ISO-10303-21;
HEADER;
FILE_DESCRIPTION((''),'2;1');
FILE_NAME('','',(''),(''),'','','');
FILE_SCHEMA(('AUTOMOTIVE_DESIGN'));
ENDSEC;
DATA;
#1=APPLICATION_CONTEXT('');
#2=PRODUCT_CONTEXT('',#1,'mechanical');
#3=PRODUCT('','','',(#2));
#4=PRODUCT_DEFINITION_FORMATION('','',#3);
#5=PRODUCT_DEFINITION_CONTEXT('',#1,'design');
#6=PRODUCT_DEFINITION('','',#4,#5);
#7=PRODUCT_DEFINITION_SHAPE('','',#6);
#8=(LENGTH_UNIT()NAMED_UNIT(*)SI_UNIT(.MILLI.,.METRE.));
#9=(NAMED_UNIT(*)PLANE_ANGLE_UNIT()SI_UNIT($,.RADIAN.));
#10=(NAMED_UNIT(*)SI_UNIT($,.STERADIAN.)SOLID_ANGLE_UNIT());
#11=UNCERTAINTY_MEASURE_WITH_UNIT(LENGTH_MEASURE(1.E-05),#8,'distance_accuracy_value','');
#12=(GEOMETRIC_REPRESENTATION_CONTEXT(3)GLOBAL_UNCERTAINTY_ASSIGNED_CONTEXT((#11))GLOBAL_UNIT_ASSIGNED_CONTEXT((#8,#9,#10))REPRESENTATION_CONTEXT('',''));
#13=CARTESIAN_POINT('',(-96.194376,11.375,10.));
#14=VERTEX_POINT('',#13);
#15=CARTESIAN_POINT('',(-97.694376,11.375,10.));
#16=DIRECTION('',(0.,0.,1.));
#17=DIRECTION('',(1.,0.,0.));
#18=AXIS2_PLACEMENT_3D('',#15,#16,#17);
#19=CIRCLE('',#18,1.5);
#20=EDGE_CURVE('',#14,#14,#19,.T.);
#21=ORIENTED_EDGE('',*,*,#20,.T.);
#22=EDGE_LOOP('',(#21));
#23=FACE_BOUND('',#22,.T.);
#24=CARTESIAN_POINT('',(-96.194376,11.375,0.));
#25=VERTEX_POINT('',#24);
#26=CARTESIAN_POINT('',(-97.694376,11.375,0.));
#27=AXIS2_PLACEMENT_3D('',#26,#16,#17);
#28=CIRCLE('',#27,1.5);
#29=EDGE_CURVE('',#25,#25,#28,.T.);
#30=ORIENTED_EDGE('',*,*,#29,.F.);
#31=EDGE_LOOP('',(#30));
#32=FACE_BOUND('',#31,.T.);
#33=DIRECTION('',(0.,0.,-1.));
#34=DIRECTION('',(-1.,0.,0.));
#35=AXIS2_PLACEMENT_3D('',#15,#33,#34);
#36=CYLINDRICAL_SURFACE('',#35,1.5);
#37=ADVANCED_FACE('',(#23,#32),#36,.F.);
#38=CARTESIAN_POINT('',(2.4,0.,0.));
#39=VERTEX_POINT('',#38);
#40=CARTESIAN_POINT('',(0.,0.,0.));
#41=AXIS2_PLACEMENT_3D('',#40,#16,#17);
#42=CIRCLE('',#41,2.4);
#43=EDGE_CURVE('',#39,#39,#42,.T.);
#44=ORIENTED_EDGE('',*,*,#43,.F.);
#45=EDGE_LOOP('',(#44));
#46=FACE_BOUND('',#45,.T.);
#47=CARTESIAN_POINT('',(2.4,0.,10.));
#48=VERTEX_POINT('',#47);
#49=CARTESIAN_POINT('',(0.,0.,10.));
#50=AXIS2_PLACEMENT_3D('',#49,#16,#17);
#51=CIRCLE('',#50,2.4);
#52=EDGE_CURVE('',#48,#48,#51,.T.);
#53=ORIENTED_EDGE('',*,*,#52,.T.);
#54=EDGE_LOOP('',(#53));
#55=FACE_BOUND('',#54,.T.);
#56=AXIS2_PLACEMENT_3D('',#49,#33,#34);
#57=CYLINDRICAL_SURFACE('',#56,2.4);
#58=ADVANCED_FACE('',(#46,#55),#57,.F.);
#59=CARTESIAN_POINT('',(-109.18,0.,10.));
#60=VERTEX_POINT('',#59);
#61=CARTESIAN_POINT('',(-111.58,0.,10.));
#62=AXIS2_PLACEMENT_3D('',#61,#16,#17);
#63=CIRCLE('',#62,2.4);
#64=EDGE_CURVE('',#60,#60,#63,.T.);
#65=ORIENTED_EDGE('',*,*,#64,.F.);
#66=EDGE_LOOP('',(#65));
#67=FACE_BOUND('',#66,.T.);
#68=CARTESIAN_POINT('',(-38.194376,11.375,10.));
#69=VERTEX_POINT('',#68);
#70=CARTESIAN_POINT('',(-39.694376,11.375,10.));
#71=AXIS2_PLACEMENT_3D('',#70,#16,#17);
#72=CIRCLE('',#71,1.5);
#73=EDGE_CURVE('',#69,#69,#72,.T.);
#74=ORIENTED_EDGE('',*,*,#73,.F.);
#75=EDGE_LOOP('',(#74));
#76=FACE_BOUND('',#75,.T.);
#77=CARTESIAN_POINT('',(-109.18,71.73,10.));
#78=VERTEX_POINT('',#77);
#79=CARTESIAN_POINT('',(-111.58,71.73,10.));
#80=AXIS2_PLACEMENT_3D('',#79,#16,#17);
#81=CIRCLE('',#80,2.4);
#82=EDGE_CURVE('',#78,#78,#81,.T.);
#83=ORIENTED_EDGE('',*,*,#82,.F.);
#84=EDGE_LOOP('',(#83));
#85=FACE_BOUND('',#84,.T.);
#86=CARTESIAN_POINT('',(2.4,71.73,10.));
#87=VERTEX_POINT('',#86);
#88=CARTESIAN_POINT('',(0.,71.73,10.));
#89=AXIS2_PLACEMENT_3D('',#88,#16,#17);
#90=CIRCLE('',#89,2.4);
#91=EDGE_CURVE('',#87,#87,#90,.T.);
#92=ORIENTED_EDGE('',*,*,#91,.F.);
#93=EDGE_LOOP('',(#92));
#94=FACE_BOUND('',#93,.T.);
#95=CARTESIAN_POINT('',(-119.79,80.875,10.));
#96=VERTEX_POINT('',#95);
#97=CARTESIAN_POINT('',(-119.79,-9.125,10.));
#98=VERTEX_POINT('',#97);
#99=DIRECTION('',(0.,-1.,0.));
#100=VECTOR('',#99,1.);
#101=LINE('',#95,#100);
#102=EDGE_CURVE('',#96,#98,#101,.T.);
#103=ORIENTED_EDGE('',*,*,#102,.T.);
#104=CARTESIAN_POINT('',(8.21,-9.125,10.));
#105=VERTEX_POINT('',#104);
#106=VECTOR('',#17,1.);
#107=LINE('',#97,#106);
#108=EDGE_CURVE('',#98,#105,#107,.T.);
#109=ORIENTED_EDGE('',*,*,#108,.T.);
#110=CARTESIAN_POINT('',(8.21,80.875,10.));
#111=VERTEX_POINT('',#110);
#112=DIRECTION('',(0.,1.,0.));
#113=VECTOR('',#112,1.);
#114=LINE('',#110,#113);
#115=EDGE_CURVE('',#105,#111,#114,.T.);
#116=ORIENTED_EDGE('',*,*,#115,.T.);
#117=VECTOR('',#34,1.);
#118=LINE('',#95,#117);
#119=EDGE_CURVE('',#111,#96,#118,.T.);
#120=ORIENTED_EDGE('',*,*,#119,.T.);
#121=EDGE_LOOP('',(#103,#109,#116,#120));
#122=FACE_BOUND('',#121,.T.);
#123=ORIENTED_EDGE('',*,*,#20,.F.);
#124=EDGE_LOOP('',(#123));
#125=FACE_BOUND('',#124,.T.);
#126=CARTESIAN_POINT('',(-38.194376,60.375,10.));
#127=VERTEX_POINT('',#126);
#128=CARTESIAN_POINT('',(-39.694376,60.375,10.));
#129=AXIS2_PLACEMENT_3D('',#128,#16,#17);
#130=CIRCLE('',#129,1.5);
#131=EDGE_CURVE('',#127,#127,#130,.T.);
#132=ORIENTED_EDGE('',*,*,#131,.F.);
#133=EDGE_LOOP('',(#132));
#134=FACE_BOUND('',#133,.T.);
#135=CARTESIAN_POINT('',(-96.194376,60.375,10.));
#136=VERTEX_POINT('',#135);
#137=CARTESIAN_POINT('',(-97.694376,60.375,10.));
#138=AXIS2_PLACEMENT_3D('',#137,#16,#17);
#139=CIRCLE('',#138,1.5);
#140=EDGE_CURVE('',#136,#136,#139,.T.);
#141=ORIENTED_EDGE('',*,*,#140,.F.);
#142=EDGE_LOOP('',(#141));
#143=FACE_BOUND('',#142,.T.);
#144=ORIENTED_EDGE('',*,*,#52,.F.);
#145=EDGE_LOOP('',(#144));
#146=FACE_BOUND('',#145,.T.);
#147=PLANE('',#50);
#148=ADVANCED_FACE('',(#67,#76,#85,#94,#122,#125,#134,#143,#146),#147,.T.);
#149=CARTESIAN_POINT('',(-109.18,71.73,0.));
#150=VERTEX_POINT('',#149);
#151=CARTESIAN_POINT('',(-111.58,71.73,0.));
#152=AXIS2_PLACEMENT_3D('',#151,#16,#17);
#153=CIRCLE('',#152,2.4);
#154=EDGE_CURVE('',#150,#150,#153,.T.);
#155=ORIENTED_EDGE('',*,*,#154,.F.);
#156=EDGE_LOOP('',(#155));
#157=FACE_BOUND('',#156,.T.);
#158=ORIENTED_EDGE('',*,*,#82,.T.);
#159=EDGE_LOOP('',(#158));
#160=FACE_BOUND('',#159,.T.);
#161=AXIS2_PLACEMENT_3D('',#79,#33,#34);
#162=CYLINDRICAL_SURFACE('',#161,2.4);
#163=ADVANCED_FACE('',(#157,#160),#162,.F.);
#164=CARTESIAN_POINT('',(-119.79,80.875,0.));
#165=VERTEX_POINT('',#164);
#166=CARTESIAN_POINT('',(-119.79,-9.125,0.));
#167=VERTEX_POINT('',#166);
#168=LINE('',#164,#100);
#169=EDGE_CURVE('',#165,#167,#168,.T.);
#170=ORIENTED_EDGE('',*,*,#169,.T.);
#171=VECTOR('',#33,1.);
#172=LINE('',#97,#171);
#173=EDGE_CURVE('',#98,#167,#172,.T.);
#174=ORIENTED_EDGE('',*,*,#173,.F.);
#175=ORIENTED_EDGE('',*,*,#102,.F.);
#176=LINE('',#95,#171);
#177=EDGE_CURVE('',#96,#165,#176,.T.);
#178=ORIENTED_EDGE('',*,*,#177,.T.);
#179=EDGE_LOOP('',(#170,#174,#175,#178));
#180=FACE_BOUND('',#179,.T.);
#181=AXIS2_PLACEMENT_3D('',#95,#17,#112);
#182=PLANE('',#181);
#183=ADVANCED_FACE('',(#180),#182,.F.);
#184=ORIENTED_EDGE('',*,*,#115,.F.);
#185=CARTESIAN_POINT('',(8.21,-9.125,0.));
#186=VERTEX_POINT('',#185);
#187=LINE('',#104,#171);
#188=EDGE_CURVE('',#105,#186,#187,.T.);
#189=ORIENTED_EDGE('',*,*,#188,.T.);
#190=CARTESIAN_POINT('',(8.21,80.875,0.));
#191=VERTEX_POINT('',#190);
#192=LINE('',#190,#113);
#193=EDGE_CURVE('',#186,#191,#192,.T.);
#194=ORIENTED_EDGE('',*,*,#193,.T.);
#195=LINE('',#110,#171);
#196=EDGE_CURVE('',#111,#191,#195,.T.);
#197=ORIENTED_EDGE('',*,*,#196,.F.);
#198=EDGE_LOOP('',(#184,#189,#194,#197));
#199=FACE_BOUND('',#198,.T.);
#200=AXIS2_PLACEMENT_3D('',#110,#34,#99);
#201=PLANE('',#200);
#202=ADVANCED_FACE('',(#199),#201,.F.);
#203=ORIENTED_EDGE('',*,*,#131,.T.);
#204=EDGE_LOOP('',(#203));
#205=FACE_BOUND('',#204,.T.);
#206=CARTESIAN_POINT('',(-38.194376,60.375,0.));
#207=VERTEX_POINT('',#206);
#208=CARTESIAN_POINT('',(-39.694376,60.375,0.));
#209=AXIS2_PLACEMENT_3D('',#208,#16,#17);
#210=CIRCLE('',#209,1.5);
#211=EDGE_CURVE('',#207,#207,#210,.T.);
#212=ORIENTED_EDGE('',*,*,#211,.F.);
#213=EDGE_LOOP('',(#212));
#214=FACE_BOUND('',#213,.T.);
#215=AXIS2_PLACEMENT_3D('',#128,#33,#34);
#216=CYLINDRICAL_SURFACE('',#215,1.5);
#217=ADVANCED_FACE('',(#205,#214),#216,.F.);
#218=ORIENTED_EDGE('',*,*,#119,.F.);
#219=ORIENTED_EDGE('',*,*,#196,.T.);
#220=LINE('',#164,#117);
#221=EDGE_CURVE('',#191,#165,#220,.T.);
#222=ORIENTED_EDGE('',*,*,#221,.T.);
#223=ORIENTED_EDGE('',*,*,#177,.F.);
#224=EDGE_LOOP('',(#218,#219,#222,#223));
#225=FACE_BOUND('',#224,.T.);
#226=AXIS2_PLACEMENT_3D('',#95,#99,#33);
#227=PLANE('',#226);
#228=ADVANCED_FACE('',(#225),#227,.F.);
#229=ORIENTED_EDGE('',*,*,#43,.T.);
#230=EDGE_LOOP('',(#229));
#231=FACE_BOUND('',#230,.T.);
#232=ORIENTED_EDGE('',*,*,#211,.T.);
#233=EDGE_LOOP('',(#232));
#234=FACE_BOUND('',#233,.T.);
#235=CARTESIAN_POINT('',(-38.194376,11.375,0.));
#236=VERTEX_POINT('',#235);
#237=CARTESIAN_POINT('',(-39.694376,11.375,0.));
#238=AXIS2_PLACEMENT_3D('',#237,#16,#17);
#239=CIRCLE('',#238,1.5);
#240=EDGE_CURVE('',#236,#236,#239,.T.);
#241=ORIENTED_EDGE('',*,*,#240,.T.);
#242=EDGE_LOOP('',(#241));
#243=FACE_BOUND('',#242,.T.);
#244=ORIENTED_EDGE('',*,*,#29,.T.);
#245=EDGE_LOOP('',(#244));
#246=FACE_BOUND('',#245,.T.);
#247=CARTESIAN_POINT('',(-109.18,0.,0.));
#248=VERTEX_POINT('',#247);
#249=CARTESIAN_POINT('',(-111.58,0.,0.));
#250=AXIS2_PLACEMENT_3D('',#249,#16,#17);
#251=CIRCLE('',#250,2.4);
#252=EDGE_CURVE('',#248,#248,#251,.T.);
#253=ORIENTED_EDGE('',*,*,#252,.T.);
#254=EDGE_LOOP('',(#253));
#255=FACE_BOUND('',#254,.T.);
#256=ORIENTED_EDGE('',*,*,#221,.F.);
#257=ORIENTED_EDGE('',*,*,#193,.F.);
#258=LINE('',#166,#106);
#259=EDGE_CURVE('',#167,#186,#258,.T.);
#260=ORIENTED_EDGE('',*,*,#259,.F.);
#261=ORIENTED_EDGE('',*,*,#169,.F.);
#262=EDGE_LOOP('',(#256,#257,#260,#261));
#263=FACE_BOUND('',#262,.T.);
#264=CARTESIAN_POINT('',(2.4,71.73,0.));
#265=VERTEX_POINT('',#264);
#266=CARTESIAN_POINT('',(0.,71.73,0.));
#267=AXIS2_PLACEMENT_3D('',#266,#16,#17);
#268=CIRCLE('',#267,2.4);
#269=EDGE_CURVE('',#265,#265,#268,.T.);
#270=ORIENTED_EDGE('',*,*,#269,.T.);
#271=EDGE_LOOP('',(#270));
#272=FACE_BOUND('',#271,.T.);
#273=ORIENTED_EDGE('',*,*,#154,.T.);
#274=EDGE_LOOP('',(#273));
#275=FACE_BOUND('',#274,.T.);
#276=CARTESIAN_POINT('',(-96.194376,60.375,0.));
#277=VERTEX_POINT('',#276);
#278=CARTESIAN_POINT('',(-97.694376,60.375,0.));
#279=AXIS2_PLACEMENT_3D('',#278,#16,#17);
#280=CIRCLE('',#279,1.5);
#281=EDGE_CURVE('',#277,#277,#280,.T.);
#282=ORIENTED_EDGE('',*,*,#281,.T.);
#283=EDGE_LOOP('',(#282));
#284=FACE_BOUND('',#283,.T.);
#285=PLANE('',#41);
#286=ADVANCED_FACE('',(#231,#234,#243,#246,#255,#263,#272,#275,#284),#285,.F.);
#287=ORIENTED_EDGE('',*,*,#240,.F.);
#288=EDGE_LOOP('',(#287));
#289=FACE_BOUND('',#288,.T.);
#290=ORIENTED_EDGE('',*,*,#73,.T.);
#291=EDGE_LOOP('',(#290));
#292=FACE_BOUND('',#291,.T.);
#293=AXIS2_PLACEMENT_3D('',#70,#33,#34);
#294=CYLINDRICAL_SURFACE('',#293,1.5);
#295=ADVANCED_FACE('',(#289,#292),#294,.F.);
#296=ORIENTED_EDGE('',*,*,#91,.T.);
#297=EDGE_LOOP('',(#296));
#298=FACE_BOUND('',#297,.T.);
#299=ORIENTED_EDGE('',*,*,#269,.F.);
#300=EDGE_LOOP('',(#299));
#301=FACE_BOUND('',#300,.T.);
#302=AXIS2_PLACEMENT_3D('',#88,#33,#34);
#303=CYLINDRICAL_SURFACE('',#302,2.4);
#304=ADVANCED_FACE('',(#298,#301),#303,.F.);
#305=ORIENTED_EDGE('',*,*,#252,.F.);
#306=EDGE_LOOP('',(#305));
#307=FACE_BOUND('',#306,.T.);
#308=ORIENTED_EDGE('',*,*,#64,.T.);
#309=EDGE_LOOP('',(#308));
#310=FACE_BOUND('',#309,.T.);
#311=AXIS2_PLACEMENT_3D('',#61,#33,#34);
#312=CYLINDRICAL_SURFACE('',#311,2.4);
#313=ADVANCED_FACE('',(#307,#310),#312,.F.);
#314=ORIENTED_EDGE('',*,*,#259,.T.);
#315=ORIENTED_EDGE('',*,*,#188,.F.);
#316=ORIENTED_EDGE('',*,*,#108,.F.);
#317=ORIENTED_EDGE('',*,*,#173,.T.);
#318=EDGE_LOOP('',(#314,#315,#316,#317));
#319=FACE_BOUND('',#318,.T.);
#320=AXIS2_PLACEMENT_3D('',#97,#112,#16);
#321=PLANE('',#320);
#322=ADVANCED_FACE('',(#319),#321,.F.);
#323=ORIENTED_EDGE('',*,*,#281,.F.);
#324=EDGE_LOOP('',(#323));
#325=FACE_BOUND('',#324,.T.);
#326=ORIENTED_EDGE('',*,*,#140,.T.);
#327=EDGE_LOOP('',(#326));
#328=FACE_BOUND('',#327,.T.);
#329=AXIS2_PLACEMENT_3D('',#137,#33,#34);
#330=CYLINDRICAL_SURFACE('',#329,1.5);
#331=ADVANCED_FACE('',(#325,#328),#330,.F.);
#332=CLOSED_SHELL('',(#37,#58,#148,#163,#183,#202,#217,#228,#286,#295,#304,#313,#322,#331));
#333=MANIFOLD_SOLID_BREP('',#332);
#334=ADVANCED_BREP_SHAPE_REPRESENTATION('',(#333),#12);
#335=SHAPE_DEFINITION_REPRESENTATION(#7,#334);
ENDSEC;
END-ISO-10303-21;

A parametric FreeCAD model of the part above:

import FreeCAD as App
import Part
import Sketcher
Q = App.Units.Quantity

doc = App.newDocument("Part")
body = doc.addObject("PartDesign::Body", "Body")

sketch1 = doc.addObject("Sketcher::SketchObject", "Sketch")
body.addObject(sketch1)
sketch1.AttachmentSupport = (doc.XY_Plane, [""])
sketch1.MapMode = "FlatFace"
sketch1.addGeometry(Part.LineSegment(App.Vector(-119.8, 80.9, 0), App.Vector(-119.8, -9.1, 0)), False)
sketch1.addGeometry(Part.LineSegment(App.Vector(-119.8, -9.1, 0), App.Vector(8.2, -9.1, 0)), False)
sketch1.addGeometry(Part.LineSegment(App.Vector(8.2, -9.1, 0), App.Vector(8.2, 80.9, 0)), False)
sketch1.addGeometry(Part.LineSegment(App.Vector(8.2, 80.9, 0), App.Vector(-119.8, 80.9, 0)), False)
sketch1.addGeometry(Part.Circle(App.Vector(-111.6, 0, 0), App.Vector(0, 0, 1), 2.4), False)
sketch1.addGeometry(Part.Circle(App.Vector(-97.7, 11.4, 0), App.Vector(0, 0, 1), 1.5), False)
sketch1.addGeometry(Part.Circle(App.Vector(-39.7, 11.4, 0), App.Vector(0, 0, 1), 1.5), False)
sketch1.addGeometry(Part.Circle(App.Vector(0, 0, 0), App.Vector(0, 0, 1), 2.4), False)
sketch1.addGeometry(Part.Circle(App.Vector(-97.7, 60.4, 0), App.Vector(0, 0, 1), 1.5), False)
sketch1.addGeometry(Part.Circle(App.Vector(-111.6, 71.7, 0), App.Vector(0, 0, 1), 2.4), False)
sketch1.addGeometry(Part.Circle(App.Vector(-39.7, 60.4, 0), App.Vector(0, 0, 1), 1.5), False)
sketch1.addGeometry(Part.Circle(App.Vector(0, 71.7, 0), App.Vector(0, 0, 1), 2.4), False)
sketch1.addConstraint(Sketcher.Constraint("Coincident", 0, 2, 1, 1))
sketch1.addConstraint(Sketcher.Constraint("Coincident", 1, 2, 2, 1))
sketch1.addConstraint(Sketcher.Constraint("Coincident", 2, 2, 3, 1))
sketch1.addConstraint(Sketcher.Constraint("Coincident", 3, 2, 0, 1))
sketch1.addConstraint(Sketcher.Constraint("Vertical", 0))
sketch1.addConstraint(Sketcher.Constraint("Horizontal", 1))
sketch1.addConstraint(Sketcher.Constraint("Vertical", 2))
sketch1.addConstraint(Sketcher.Constraint("Horizontal", 3))
sketch1.addConstraint(Sketcher.Constraint("Coincident", 7, 3, -1, 1))
sketch1.addConstraint(Sketcher.Constraint("Equal", 5, 6))
sketch1.addConstraint(Sketcher.Constraint("Equal", 4, 7))
sketch1.addConstraint(Sketcher.Constraint("Equal", 6, 8))
sketch1.addConstraint(Sketcher.Constraint("Equal", 7, 9))
sketch1.addConstraint(Sketcher.Constraint("Equal", 8, 10))
sketch1.addConstraint(Sketcher.Constraint("Equal", 9, 11))
sketch1.addConstraint(Sketcher.Constraint("PointOnObject", 4, 3, -1))
sketch1.addConstraint(Sketcher.Constraint("PointOnObject", 11, 3, -2))
sketch1.addConstraint(Sketcher.Constraint("Horizontal", 5, 3, 6, 3))
sketch1.addConstraint(Sketcher.Constraint("Horizontal", 8, 3, 10, 3))
sketch1.addConstraint(Sketcher.Constraint("Horizontal", 9, 3, 11, 3))
sketch1.addConstraint(Sketcher.Constraint("Vertical", 5, 3, 8, 3))
sketch1.addConstraint(Sketcher.Constraint("Vertical", 4, 3, 9, 3))
sketch1.addConstraint(Sketcher.Constraint("Vertical", 6, 3, 10, 3))
sketch1.addConstraint(Sketcher.Constraint("Diameter", 5, Q("3 mm")))
sketch1.addConstraint(Sketcher.Constraint("Diameter", 4, Q("4.8 mm")))
sketch1.addConstraint(Sketcher.Constraint("DistanceX", 1, 1, 1, 2, Q("128 mm")))
sketch1.addConstraint(Sketcher.Constraint("DistanceY", 0, 2, 0, 1, Q("90 mm")))
sketch1.addConstraint(Sketcher.Constraint("DistanceX", 5, 3, 6, 3, Q("58 mm")))
sketch1.addConstraint(Sketcher.Constraint("DistanceY", 5, 3, 8, 3, Q("49 mm")))
sketch1.addConstraint(Sketcher.Constraint("DistanceY", 0, 2, 5, 3, Q("20.5 mm")))
sketch1.addConstraint(Sketcher.Constraint("DistanceX", 4, 3, -1, 1, Q("111.58 mm")))
sketch1.addConstraint(Sketcher.Constraint("DistanceY", -1, 1, 9, 3, Q("71.73 mm")))
sketch1.addConstraint(Sketcher.Constraint("DistanceX", 0, 2, -1, 1, Q("119.79 mm")))
sketch1.addConstraint(Sketcher.Constraint("DistanceY", -1, 1, 5, 3, Q("11.375 mm")))
sketch1.addConstraint(Sketcher.Constraint("DistanceX", 5, 3, -1, 1, Q("97.694376 mm")))
pad1 = doc.addObject("PartDesign::Pad", "Pad")
body.addObject(pad1)
pad1.Profile = sketch1
pad1.Length = 10

doc.recompute()
